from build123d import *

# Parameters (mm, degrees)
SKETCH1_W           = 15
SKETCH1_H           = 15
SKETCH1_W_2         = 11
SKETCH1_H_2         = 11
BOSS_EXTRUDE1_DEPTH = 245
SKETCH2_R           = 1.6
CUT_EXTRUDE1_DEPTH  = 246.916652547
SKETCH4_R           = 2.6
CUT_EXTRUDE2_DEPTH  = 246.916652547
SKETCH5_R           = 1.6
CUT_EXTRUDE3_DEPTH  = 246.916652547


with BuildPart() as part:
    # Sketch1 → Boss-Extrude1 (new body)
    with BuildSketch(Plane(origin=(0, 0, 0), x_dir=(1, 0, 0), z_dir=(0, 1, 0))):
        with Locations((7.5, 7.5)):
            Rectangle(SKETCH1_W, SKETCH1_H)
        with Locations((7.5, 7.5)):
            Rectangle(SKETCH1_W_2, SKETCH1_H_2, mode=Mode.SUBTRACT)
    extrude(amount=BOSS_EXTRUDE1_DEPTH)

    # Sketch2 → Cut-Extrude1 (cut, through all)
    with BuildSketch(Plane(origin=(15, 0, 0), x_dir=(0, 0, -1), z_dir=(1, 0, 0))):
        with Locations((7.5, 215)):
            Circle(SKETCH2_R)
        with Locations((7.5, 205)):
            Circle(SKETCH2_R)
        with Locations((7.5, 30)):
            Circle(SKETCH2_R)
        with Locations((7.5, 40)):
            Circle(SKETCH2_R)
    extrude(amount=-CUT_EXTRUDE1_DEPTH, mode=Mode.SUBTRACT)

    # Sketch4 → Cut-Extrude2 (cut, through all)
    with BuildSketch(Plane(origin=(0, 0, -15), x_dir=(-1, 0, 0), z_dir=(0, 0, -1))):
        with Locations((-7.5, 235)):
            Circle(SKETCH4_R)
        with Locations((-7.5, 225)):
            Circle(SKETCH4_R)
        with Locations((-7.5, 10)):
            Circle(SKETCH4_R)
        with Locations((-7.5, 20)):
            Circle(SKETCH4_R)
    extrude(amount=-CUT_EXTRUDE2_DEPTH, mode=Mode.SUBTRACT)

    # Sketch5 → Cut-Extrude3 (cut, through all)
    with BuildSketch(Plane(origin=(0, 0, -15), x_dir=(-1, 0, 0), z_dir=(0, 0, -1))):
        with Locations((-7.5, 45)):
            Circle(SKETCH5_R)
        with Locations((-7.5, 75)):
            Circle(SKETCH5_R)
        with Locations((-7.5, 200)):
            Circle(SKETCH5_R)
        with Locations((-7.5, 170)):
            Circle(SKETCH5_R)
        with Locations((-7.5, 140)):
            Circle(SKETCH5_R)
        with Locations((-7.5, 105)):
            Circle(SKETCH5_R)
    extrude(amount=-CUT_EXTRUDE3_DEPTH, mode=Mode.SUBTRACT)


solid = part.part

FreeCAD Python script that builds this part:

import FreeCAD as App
import Part
import Sketcher
from FreeCAD import Vector


def add_polygon(sketch, points):
    """Adds a closed chain of lines whose ends are joined by coincident constraints."""
    first, n = sketch.GeometryCount, len(points)
    for a, b in zip(points, points[1:] + points[:1]):
        sketch.addGeometry(Part.LineSegment(App.Vector(*a, 0), App.Vector(*b, 0)), False)
    for i in range(n):
        sketch.addConstraint(Sketcher.Constraint("Coincident", first + i, 2, first + (i + 1) % n, 1))

doc = App.newDocument("Part")
body = doc.addObject("PartDesign::Body", "Body")

# Sketch on XZ plane
sketch1 = body.newObject("Sketcher::SketchObject", "Sketch")
sketch1.AttachmentSupport = (doc.getObject("XZ_Plane"), [""])
sketch1.MapMode = "FlatFace"
add_polygon(sketch1, [(0, -15), (0, 0), (15, 0), (15, -15)])  # lines 0-3
add_polygon(sketch1, [(13, -2), (2, -2), (2, -13), (13, -13)])  # lines 4-7
sketch1.addConstraint(Sketcher.Constraint("Vertical", 0))
sketch1.addConstraint(Sketcher.Constraint("Horizontal", 1))
sketch1.addConstraint(Sketcher.Constraint("Vertical", 2))
sketch1.addConstraint(Sketcher.Constraint("Horizontal", 3))
sketch1.addConstraint(Sketcher.Constraint("Horizontal", 4))
sketch1.addConstraint(Sketcher.Constraint("Vertical", 5))
sketch1.addConstraint(Sketcher.Constraint("Horizontal", 6))
sketch1.addConstraint(Sketcher.Constraint("Vertical", 7))
sketch1.addConstraint(Sketcher.Constraint("Coincident", 0, 2, -1, 1))
sketch1.addConstraint(Sketcher.Constraint("Equal", 3, 0))
sketch1.addConstraint(Sketcher.Constraint("Equal", 6, 5))
sketch1.addConstraint(Sketcher.Constraint("DistanceX", 1, 1, 1, 2, 15.0))
sketch1.addConstraint(Sketcher.Constraint("DistanceX", 4, 2, 4, 1, 11.0))
sketch1.addConstraint(Sketcher.Constraint("DistanceX", -1, 1, 4, 2, 2.0))
sketch1.addConstraint(Sketcher.Constraint("DistanceY", 4, 2, -1, 1, 2.0))
pad1 = body.newObject("PartDesign::Pad", "Pad")
pad1.Profile = sketch1
pad1.Length = 245
pad1.Reversed = True

# Sketch on YZ plane
sketch2 = body.newObject("Sketcher::SketchObject", "Sketch001")
sketch2.AttachmentSupport = (doc.getObject("YZ_Plane"), [""])
sketch2.MapMode = "FlatFace"
sketch2.AttachmentOffset = App.Placement(Vector(0, 0, 15), App.Rotation())
sketch2.addGeometry(Part.Circle(Vector(215, -7.5, 0), Vector(0, 0, 1), 1.6), False)
sketch2.addGeometry(Part.Circle(Vector(205, -7.5, 0), Vector(0, 0, 1), 1.6), False)
sketch2.addGeometry(Part.Circle(Vector(30, -7.5, 0), Vector(0, 0, 1), 1.6), False)
sketch2.addGeometry(Part.Circle(Vector(40, -7.5, 0), Vector(0, 0, 1), 1.6), False)
sketch2.addConstraint(Sketcher.Constraint("Equal", 0, 1))
sketch2.addConstraint(Sketcher.Constraint("Equal", 1, 2))
sketch2.addConstraint(Sketcher.Constraint("Equal", 2, 3))
sketch2.addConstraint(Sketcher.Constraint("Horizontal", 0, 3, 1, 3))
sketch2.addConstraint(Sketcher.Constraint("Horizontal", 1, 3, 2, 3))
sketch2.addConstraint(Sketcher.Constraint("Horizontal", 2, 3, 3, 3))
sketch2.addConstraint(Sketcher.Constraint("Diameter", 0, 3.2))
sketch2.addConstraint(Sketcher.Constraint("DistanceX", -1, 1, 0, 3, 215.0))
sketch2.addConstraint(Sketcher.Constraint("DistanceX", -1, 1, 1, 3, 205.0))
sketch2.addConstraint(Sketcher.Constraint("DistanceX", -1, 1, 2, 3, 30.0))
sketch2.addConstraint(Sketcher.Constraint("DistanceX", -1, 1, 3, 3, 40.0))
sketch2.addConstraint(Sketcher.Constraint("DistanceY", 0, 3, -1, 1, 7.5))
pocket1 = body.newObject("PartDesign::Pocket", "Pocket")
pocket1.Profile = sketch2
pocket1.Type = "ThroughAll"

# Sketch on XY plane
sketch3 = body.newObject("Sketcher::SketchObject", "Sketch002")
sketch3.AttachmentSupport = (doc.getObject("XY_Plane"), [""])
sketch3.MapMode = "FlatFace"
sketch3.AttachmentOffset = App.Placement(Vector(0, 0, -15), App.Rotation())
sketch3.addGeometry(Part.Circle(Vector(7.5, 235, 0), Vector(0, 0, 1), 2.6), False)
sketch3.addGeometry(Part.Circle(Vector(7.5, 225, 0), Vector(0, 0, 1), 2.6), False)
sketch3.addGeometry(Part.Circle(Vector(7.5, 10, 0), Vector(0, 0, 1), 2.6), False)
sketch3.addGeometry(Part.Circle(Vector(7.5, 20, 0), Vector(0, 0, 1), 2.6), False)
sketch3.addConstraint(Sketcher.Constraint("Equal", 0, 1))
sketch3.addConstraint(Sketcher.Constraint("Equal", 1, 2))
sketch3.addConstraint(Sketcher.Constraint("Equal", 2, 3))
sketch3.addConstraint(Sketcher.Constraint("Vertical", 0, 3, 1, 3))
sketch3.addConstraint(Sketcher.Constraint("Vertical", 1, 3, 2, 3))
sketch3.addConstraint(Sketcher.Constraint("Vertical", 2, 3, 3, 3))
sketch3.addConstraint(Sketcher.Constraint("Diameter", 0, 5.2))
sketch3.addConstraint(Sketcher.Constraint("DistanceY", -1, 1, 0, 3, 235.0))
sketch3.addConstraint(Sketcher.Constraint("DistanceY", -1, 1, 1, 3, 225.0))
sketch3.addConstraint(Sketcher.Constraint("DistanceY", -1, 1, 2, 3, 10.0))
sketch3.addConstraint(Sketcher.Constraint("DistanceY", -1, 1, 3, 3, 20.0))
sketch3.addConstraint(Sketcher.Constraint("DistanceX", -1, 1, 0, 3, 7.5))
pocket2 = body.newObject("PartDesign::Pocket", "Pocket001")
pocket2.Profile = sketch3
pocket2.Type = "ThroughAll"
pocket2.Reversed = True

# Sketch on XY plane
sketch4 = body.newObject("Sketcher::SketchObject", "Sketch003")
sketch4.AttachmentSupport = (doc.getObject("XY_Plane"), [""])
sketch4.MapMode = "FlatFace"
sketch4.AttachmentOffset = App.Placement(Vector(0, 0, -15), App.Rotation())
sketch4.addGeometry(Part.Circle(Vector(7.5, 45, 0), Vector(0, 0, 1), 1.6), False)
sketch4.addGeometry(Part.Circle(Vector(7.5, 75, 0), Vector(0, 0, 1), 1.6), False)
sketch4.addGeometry(Part.Circle(Vector(7.5, 200, 0), Vector(0, 0, 1), 1.6), False)
sketch4.addGeometry(Part.Circle(Vector(7.5, 170, 0), Vector(0, 0, 1), 1.6), False)
sketch4.addGeometry(Part.Circle(Vector(7.5, 140, 0), Vector(0, 0, 1), 1.6), False)
sketch4.addGeometry(Part.Circle(Vector(7.5, 105, 0), Vector(0, 0, 1), 1.6), False)
sketch4.addConstraint(Sketcher.Constraint("Equal", 0, 1))
sketch4.addConstraint(Sketcher.Constraint("Equal", 1, 2))
sketch4.addConstraint(Sketcher.Constraint("Equal", 2, 3))
sketch4.addConstraint(Sketcher.Constraint("Equal", 3, 4))
sketch4.addConstraint(Sketcher.Constraint("Equal", 4, 5))
sketch4.addConstraint(Sketcher.Constraint("Vertical", 0, 3, 1, 3))
sketch4.addConstraint(Sketcher.Constraint("Vertical", 1, 3, 2, 3))
sketch4.addConstraint(Sketcher.Constraint("Vertical", 2, 3, 3, 3))
sketch4.addConstraint(Sketcher.Constraint("Vertical", 3, 3, 4, 3))
sketch4.addConstraint(Sketcher.Constraint("Vertical", 4, 3, 5, 3))
sketch4.addConstraint(Sketcher.Constraint("Diameter", 0, 3.2))
sketch4.addConstraint(Sketcher.Constraint("DistanceY", -1, 1, 0, 3, 45.0))
sketch4.addConstraint(Sketcher.Constraint("DistanceY", -1, 1, 1, 3, 75.0))
sketch4.addConstraint(Sketcher.Constraint("DistanceY", -1, 1, 2, 3, 200.0))
sketch4.addConstraint(Sketcher.Constraint("DistanceY", -1, 1, 3, 3, 170.0))
sketch4.addConstraint(Sketcher.Constraint("DistanceY", -1, 1, 4, 3, 140.0))
sketch4.addConstraint(Sketcher.Constraint("DistanceY", -1, 1, 5, 3, 105.0))
sketch4.addConstraint(Sketcher.Constraint("DistanceX", -1, 1, 0, 3, 7.5))
pocket3 = body.newObject("PartDesign::Pocket", "Pocket002")
pocket3.Profile = sketch4
pocket3.Type = "ThroughAll"
pocket3.Reversed = True

doc.recompute()
